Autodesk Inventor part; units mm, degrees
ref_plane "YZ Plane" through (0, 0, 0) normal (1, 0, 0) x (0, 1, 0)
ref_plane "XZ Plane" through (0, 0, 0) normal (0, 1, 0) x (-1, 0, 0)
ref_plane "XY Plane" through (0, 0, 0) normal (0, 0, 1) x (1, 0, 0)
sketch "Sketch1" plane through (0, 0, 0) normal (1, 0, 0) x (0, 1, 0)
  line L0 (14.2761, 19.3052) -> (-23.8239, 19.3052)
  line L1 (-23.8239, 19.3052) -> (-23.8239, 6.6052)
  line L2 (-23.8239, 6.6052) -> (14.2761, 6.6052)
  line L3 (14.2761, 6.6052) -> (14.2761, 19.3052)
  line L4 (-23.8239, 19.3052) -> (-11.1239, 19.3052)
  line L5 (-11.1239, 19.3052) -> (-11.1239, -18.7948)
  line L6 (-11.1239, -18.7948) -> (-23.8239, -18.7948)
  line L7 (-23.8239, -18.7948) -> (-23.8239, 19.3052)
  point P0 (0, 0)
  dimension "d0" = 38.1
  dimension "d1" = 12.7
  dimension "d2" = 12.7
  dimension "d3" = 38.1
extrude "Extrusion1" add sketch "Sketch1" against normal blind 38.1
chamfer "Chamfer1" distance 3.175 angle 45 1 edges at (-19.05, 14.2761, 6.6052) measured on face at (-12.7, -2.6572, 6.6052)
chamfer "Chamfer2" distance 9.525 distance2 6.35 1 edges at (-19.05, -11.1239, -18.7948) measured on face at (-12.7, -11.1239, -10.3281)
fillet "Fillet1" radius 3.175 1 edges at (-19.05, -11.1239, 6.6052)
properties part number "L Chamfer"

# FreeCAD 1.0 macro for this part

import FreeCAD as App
import Part
import Sketcher

V = App.Vector
Q = App.Units.Quantity


def edges_at(feature, points):
    """Names of the edges that pass closest to the given points."""
    edges = feature.Shape.Edges
    near = lambda p: min(range(len(edges)), key=lambda i: edges[i].distToShape(Part.Vertex(*p))[0])
    return sorted({f"Edge{near(p) + 1}" for p in points})

doc = App.newDocument("Part")
body = doc.addObject("PartDesign::Body", "Body")

# Sketch on YZ plane
sketch1 = doc.addObject("Sketcher::SketchObject", "Sketch")
body.addObject(sketch1)
sketch1.AttachmentSupport = (doc.YZ_Plane, [""])
sketch1.MapMode = "FlatFace"
sketch1.addGeometry(Part.LineSegment(V(14.2761, 6.6052, 0), V(14.2761, 19.3052, 0)), False)
sketch1.addGeometry(Part.LineSegment(V(14.2761, 19.3052, 0), V(-23.8239, 19.3052, 0)), False)
sketch1.addGeometry(Part.LineSegment(V(-23.8239, 19.3052, 0), V(-23.8239, -18.7948, 0)), False)
sketch1.addGeometry(Part.LineSegment(V(-23.8239, -18.7948, 0), V(-11.1239, -18.7948, 0)), False)
sketch1.addGeometry(Part.LineSegment(V(-11.1239, -18.7948, 0), V(-11.1239, 6.6052, 0)), False)
sketch1.addGeometry(Part.LineSegment(V(-11.1239, 6.6052, 0), V(14.2761, 6.6052, 0)), False)
sketch1.addConstraint(Sketcher.Constraint("Coincident", 0, 2, 1, 1))
sketch1.addConstraint(Sketcher.Constraint("Coincident", 1, 2, 2, 1))
sketch1.addConstraint(Sketcher.Constraint("Coincident", 2, 2, 3, 1))
sketch1.addConstraint(Sketcher.Constraint("Coincident", 3, 2, 4, 1))
sketch1.addConstraint(Sketcher.Constraint("Coincident", 4, 2, 5, 1))
sketch1.addConstraint(Sketcher.Constraint("Coincident", 5, 2, 0, 1))
sketch1.addConstraint(Sketcher.Constraint("Vertical", 0))
sketch1.addConstraint(Sketcher.Constraint("Horizontal", 1))
sketch1.addConstraint(Sketcher.Constraint("Vertical", 2))
sketch1.addConstraint(Sketcher.Constraint("Horizontal", 3))
sketch1.addConstraint(Sketcher.Constraint("Vertical", 4))
sketch1.addConstraint(Sketcher.Constraint("Horizontal", 5))
sketch1.addConstraint(Sketcher.Constraint("Equal", 3, 0))
sketch1.addConstraint(Sketcher.Constraint("Equal", 1, 2))
sketch1.addConstraint(Sketcher.Constraint("DistanceX", 1, 2, 1, 1, Q("1.5 in")))
sketch1.addConstraint(Sketcher.Constraint("DistanceX", 3, 1, 3, 2, Q("0.5 in")))
sketch1.addConstraint(Sketcher.Constraint("DistanceX", -1, 1, 0, 2, Q("14.276 mm")))
sketch1.addConstraint(Sketcher.Constraint("DistanceY", -1, 1, 0, 2, Q("19.3052 mm")))
pad1 = doc.addObject("PartDesign::Pad", "Pad")
body.addObject(pad1)
pad1.Profile = sketch1
pad1.Length = Q("1.5 in")
pad1.Reversed = True
doc.recompute()

chamfer = doc.addObject("PartDesign::Chamfer", "Chamfer")
body.addObject(chamfer)
chamfer.Base = (pad1, edges_at(pad1, [(-19.05, 14.276, 6.605)]))
chamfer.Size = Q("0.125 in")
doc.recompute()

chamfer2 = doc.addObject("PartDesign::Chamfer", "Chamfer001")
body.addObject(chamfer2)
chamfer2.Base = (chamfer, edges_at(chamfer, [(-19.05, -11.124, -18.795)]))
chamfer2.ChamferType = "Two distances"
chamfer2.Size = Q("0.375 in")
chamfer2.Size2 = Q("0.25 in")
doc.recompute()

fillet = doc.addObject("PartDesign::Fillet", "Fillet")
body.addObject(fillet)
fillet.Base = (chamfer2, edges_at(chamfer2, [(-19.05, -11.124, 6.605)]))
fillet.Radius = Q("0.125 in")

doc.recompute()
